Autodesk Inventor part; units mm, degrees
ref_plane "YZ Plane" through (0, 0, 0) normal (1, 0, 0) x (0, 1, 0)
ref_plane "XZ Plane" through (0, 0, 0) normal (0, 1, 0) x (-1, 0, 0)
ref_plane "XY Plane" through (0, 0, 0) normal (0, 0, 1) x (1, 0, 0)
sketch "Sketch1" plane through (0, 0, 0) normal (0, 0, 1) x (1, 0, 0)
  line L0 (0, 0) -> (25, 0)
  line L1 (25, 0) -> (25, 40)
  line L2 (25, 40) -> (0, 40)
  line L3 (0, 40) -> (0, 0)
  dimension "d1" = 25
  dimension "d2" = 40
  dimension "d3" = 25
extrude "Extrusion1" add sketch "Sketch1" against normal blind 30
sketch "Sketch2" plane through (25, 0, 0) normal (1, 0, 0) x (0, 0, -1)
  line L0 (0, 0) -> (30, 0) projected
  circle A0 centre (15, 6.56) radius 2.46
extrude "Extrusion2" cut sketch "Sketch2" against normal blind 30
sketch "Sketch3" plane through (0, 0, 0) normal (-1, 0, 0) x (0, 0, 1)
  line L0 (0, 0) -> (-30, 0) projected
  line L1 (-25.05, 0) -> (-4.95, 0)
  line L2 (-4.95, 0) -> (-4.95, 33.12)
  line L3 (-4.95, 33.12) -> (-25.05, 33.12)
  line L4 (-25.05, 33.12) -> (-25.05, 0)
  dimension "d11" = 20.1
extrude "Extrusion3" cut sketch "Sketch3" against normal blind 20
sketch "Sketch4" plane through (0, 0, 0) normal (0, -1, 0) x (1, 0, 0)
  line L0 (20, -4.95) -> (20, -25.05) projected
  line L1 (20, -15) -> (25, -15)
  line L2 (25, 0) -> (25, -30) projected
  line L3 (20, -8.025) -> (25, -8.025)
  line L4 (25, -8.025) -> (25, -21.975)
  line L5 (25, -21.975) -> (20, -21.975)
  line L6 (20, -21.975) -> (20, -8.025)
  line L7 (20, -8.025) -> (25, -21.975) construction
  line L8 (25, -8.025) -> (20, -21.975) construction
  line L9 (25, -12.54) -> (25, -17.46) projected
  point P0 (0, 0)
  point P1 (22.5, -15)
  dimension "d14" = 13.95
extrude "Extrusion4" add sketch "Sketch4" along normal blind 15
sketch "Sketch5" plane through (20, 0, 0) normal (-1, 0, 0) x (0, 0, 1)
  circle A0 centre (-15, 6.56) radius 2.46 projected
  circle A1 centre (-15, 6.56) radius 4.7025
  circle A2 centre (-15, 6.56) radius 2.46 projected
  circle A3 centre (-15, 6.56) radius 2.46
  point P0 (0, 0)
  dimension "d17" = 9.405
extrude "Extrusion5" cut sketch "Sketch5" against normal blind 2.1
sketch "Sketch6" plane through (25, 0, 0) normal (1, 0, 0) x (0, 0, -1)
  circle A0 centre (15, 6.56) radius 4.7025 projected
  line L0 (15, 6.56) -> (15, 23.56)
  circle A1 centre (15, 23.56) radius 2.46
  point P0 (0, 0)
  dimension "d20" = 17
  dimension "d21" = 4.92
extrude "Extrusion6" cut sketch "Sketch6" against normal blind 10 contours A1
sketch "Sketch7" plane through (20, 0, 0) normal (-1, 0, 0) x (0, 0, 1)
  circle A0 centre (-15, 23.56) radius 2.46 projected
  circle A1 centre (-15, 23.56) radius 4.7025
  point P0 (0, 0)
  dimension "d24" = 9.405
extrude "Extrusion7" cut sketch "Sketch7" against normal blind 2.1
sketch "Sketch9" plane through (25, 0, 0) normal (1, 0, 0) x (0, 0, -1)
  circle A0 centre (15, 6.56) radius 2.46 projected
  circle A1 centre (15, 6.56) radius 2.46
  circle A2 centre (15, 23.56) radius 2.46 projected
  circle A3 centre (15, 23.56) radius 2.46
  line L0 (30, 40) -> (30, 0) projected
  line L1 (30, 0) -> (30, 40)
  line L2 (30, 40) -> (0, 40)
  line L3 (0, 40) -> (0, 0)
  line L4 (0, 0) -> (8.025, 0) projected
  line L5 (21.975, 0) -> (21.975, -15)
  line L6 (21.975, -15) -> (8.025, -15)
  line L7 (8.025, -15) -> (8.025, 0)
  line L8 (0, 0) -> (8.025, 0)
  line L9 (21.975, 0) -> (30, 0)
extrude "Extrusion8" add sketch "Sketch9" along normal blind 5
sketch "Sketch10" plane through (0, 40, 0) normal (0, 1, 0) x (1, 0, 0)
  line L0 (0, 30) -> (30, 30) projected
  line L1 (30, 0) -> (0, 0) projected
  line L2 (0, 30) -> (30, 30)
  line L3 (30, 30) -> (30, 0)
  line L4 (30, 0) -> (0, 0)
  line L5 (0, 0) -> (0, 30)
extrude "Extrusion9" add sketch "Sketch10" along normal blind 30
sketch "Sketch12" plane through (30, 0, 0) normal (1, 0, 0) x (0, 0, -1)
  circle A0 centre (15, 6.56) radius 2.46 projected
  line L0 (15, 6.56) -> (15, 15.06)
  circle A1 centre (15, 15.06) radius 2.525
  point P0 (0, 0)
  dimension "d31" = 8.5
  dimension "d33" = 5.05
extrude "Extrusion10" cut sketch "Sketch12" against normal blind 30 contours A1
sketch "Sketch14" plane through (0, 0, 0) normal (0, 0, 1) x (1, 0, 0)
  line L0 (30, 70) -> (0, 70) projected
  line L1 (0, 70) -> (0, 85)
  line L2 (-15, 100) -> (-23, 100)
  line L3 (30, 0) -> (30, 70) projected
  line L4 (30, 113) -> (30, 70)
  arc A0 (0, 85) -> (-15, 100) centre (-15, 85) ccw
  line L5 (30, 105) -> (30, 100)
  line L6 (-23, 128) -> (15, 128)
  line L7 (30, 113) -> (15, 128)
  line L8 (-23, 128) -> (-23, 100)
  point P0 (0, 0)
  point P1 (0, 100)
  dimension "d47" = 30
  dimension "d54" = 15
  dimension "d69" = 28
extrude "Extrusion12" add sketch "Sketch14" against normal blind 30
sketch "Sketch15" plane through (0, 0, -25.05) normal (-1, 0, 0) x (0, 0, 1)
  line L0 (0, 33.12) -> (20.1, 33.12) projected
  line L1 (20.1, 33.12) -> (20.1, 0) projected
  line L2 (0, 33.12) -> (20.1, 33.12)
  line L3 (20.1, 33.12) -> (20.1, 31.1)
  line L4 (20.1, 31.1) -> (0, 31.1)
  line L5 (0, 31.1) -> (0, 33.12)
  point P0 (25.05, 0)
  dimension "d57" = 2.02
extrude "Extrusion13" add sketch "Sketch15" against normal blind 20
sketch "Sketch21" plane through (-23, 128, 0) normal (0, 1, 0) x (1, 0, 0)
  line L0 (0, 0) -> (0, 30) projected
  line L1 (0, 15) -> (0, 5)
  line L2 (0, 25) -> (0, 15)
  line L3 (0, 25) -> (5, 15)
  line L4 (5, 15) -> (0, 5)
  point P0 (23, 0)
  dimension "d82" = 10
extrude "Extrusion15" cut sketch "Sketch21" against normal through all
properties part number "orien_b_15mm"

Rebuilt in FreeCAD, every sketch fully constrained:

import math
import FreeCAD as App
import Part
import Sketcher
Q = App.Units.Quantity


def add_polygon(sketch, points):
    """Adds a closed chain of lines whose ends are joined by coincident constraints."""
    first, n = sketch.GeometryCount, len(points)
    for a, b in zip(points, points[1:] + points[:1]):
        sketch.addGeometry(Part.LineSegment(App.Vector(*a, 0), App.Vector(*b, 0)), False)
    for i in range(n):
        sketch.addConstraint(Sketcher.Constraint("Coincident", first + i, 2, first + (i + 1) % n, 1))

doc = App.newDocument("Part")
body = doc.addObject("PartDesign::Body", "Body")

# Sketch on XY plane
sketch1 = body.newObject("Sketcher::SketchObject", "Sketch")
sketch1.AttachmentSupport = (doc.getObject("XY_Plane"), [""])
sketch1.MapMode = "FlatFace"
add_polygon(sketch1, [(0, 40), (0, 0), (25, 0), (25, 40)])  # lines 0-3
sketch1.addConstraint([
    Sketcher.Constraint("Vertical", 0),
    Sketcher.Constraint("Horizontal", 1),
    Sketcher.Constraint("Vertical", 2),
    Sketcher.Constraint("Horizontal", 3),
    Sketcher.Constraint("Coincident", 0, 2, -1, 1),
    Sketcher.Constraint("DistanceX", 1, 1, 1, 2, Q("25 mm")),
    Sketcher.Constraint("DistanceY", 0, 2, 0, 1, Q("40 mm")),
])
pad1 = body.newObject("PartDesign::Pad", "Pad")
pad1.Profile = sketch1
pad1.Length = 30
pad1.Reversed = True

# Sketch on YZ plane
sketch2 = body.newObject("Sketcher::SketchObject", "Sketch001")
sketch2.AttachmentSupport = (doc.getObject("YZ_Plane"), [""])
sketch2.MapMode = "FlatFace"
sketch2.AttachmentOffset = App.Placement(App.Vector(0, 0, 25), App.Rotation())
sketch2.addGeometry(Part.Circle(App.Vector(6.56, -15, 0), App.Vector(0, 0, 1), 2.46), False)
sketch2.addConstraint([
    Sketcher.Constraint("Diameter", 0, Q("4.92 mm")),
    Sketcher.Constraint("DistanceY", 0, 3, -1, 1, Q("15 mm")),
    Sketcher.Constraint("DistanceX", -1, 1, 0, 3, Q("6.56 mm")),
])
pocket1 = body.newObject("PartDesign::Pocket", "Pocket")
pocket1.Profile = sketch2
pocket1.Length = 30

# Sketch on YZ plane
sketch3 = body.newObject("Sketcher::SketchObject", "Sketch002")
sketch3.AttachmentSupport = (doc.getObject("YZ_Plane"), [""])
sketch3.MapMode = "FlatFace"
add_polygon(sketch3, [(0, -25.05), (0, -4.95), (33.12, -4.95), (33.12, -25.05)])  # lines 0-3
sketch3.addConstraint([
    Sketcher.Constraint("Vertical", 0),
    Sketcher.Constraint("Horizontal", 1),
    Sketcher.Constraint("Vertical", 2),
    Sketcher.Constraint("Horizontal", 3),
    Sketcher.Constraint("PointOnObject", 0, 2, -2),
    Sketcher.Constraint("DistanceY", 0, 1, 0, 2, Q("20.1 mm")),
    Sketcher.Constraint("DistanceX", 1, 1, 1, 2, Q("33.12 mm")),
    Sketcher.Constraint("DistanceY", 0, 2, -1, 1, Q("4.95 mm")),
])
pocket2 = body.newObject("PartDesign::Pocket", "Pocket001")
pocket2.Profile = sketch3
pocket2.Length = 20
pocket2.Reversed = True

# Sketch on XZ plane
sketch4 = body.newObject("Sketcher::SketchObject", "Sketch003")
sketch4.AttachmentSupport = (doc.getObject("XZ_Plane"), [""])
sketch4.MapMode = "FlatFace"
add_polygon(sketch4, [(25, -8.025), (20, -8.025), (20, -21.975), (25, -21.975)])  # lines 0-3
sketch4.addConstraint([
    Sketcher.Constraint("Horizontal", 0),
    Sketcher.Constraint("Vertical", 1),
    Sketcher.Constraint("Horizontal", 2),
    Sketcher.Constraint("Vertical", 3),
    Sketcher.Constraint("DistanceY", 1, 2, 1, 1, Q("13.95 mm")),
    Sketcher.Constraint("DistanceX", 0, 2, 0, 1, Q("5 mm")),
    Sketcher.Constraint("DistanceX", -1, 1, 0, 2, Q("20 mm")),
    Sketcher.Constraint("DistanceY", 0, 2, -1, 1, Q("8.025 mm")),
])
pad2 = body.newObject("PartDesign::Pad", "Pad001")
pad2.Profile = sketch4
pad2.Length = 15

# Sketch on YZ plane
sketch5 = body.newObject("Sketcher::SketchObject", "Sketch004")
sketch5.AttachmentSupport = (doc.getObject("YZ_Plane"), [""])
sketch5.MapMode = "FlatFace"
sketch5.AttachmentOffset = App.Placement(App.Vector(0, 0, 20), App.Rotation())
sketch5.addGeometry([
    Part.Circle(App.Vector(6.56, -15, 0), App.Vector(0, 0, 1), 4.7025),
    Part.Circle(App.Vector(6.56, -15, 0), App.Vector(0, 0, 1), 2.46),
], False)
sketch5.addConstraint([
    Sketcher.Constraint("Coincident", 1, 3, 0, 3),
    Sketcher.Constraint("Diameter", 0, Q("9.405 mm")),
    Sketcher.Constraint("Diameter", 1, Q("4.92 mm")),
    Sketcher.Constraint("DistanceY", 0, 3, -1, 1, Q("15 mm")),
    Sketcher.Constraint("DistanceX", -1, 1, 0, 3, Q("6.56 mm")),
])
pocket3 = body.newObject("PartDesign::Pocket", "Pocket002")
pocket3.Profile = sketch5
pocket3.Length = 2.1
pocket3.Reversed = True

# Sketch on YZ plane
sketch6 = body.newObject("Sketcher::SketchObject", "Sketch005")
sketch6.AttachmentSupport = (doc.getObject("YZ_Plane"), [""])
sketch6.MapMode = "FlatFace"
sketch6.AttachmentOffset = App.Placement(App.Vector(0, 0, 25), App.Rotation())
sketch6.addGeometry(Part.Circle(App.Vector(23.56, -15, 0), App.Vector(0, 0, 1), 2.46), False)
sketch6.addConstraint([
    Sketcher.Constraint("Diameter", 0, Q("4.92 mm")),
    Sketcher.Constraint("DistanceY", 0, 3, -1, 1, Q("15 mm")),
    Sketcher.Constraint("DistanceX", -1, 1, 0, 3, Q("23.56 mm")),
])
pocket4 = body.newObject("PartDesign::Pocket", "Pocket003")
pocket4.Profile = sketch6
pocket4.Length = 10

# Sketch on YZ plane
sketch7 = body.newObject("Sketcher::SketchObject", "Sketch006")
sketch7.AttachmentSupport = (doc.getObject("YZ_Plane"), [""])
sketch7.MapMode = "FlatFace"
sketch7.AttachmentOffset = App.Placement(App.Vector(0, 0, 20), App.Rotation())
sketch7.addGeometry([
    Part.Circle(App.Vector(23.56, -15, 0), App.Vector(0, 0, 1), 4.7025),
    Part.Circle(App.Vector(23.56, -15, 0), App.Vector(0, 0, 1), 2.46),
], False)
sketch7.addConstraint([
    Sketcher.Constraint("Coincident", 1, 3, 0, 3),
    Sketcher.Constraint("Diameter", 0, Q("9.405 mm")),
    Sketcher.Constraint("Diameter", 1, Q("4.92 mm")),
    Sketcher.Constraint("DistanceY", 0, 3, -1, 1, Q("15 mm")),
    Sketcher.Constraint("DistanceX", -1, 1, 0, 3, Q("23.56 mm")),
])
pocket5 = body.newObject("PartDesign::Pocket", "Pocket004")
pocket5.Profile = sketch7
pocket5.Length = 2.1
pocket5.Reversed = True

# Sketch on YZ plane
sketch8 = body.newObject("Sketcher::SketchObject", "Sketch007")
sketch8.AttachmentSupport = (doc.getObject("YZ_Plane"), [""])
sketch8.MapMode = "FlatFace"
sketch8.AttachmentOffset = App.Placement(App.Vector(0, 0, 25), App.Rotation())
add_polygon(sketch8, [(0, -30), (40, -30), (40, 0), (0, 0), (0, -8.025), (-15, -8.025), (-15, -21.975), (0, -21.975)])  # lines 0-7
sketch8.addGeometry(Part.Circle(App.Vector(6.56, -15, 0), App.Vector(0, 0, 1), 2.46), False)  # 8
sketch8.addGeometry(Part.Circle(App.Vector(23.56, -15, 0), App.Vector(0, 0, 1), 2.46), False)  # 9
sketch8.addConstraint([
    Sketcher.Constraint("Horizontal", 0),
    Sketcher.Constraint("Vertical", 1),
    Sketcher.Constraint("Horizontal", 2),
    Sketcher.Constraint("Vertical", 3),
    Sketcher.Constraint("Horizontal", 4),
    Sketcher.Constraint("Vertical", 5),
    Sketcher.Constraint("Horizontal", 6),
    Sketcher.Constraint("Vertical", 7),
    Sketcher.Constraint("Coincident", 2, 2, -1, 1),
    Sketcher.Constraint("Equal", 8, 9),
    Sketcher.Constraint("PointOnObject", 6, 2, -2),
    Sketcher.Constraint("Horizontal", 8, 3, 9, 3),
    Sketcher.Constraint("Equal", 3, 7),
    Sketcher.Constraint("Diameter", 8, Q("4.92 mm")),
    Sketcher.Constraint("DistanceX", 0, 1, 0, 2, Q("40 mm")),
    Sketcher.Constraint("DistanceX", 4, 2, 4, 1, Q("15 mm")),
    Sketcher.Constraint("DistanceY", 1, 1, 1, 2, Q("30 mm")),
    Sketcher.Constraint("DistanceY", 8, 3, -1, 1, Q("15 mm")),
    Sketcher.Constraint("DistanceX", 8, 3, 9, 3, Q("17 mm")),
    Sketcher.Constraint("DistanceY", 5, 2, 5, 1, Q("13.95 mm")),
    Sketcher.Constraint("DistanceX", -1, 1, 8, 3, Q("6.56 mm")),
])
pad3 = body.newObject("PartDesign::Pad", "Pad002")
pad3.Profile = sketch8
pad3.Length = 5

# Sketch on XZ plane
sketch9 = body.newObject("Sketcher::SketchObject", "Sketch008")
sketch9.AttachmentSupport = (doc.getObject("XZ_Plane"), [""])
sketch9.MapMode = "FlatFace"
sketch9.AttachmentOffset = App.Placement(App.Vector(0, 0, -40), App.Rotation())
add_polygon(sketch9, [(30, -30), (0, -30), (0, 0), (30, 0)])  # lines 0-3
sketch9.addConstraint([
    Sketcher.Constraint("Horizontal", 0),
    Sketcher.Constraint("Vertical", 1),
    Sketcher.Constraint("Horizontal", 2),
    Sketcher.Constraint("Vertical", 3),
    Sketcher.Constraint("Coincident", 1, 2, -1, 1),
    Sketcher.Constraint("Equal", 2, 1),
    Sketcher.Constraint("DistanceX", 0, 2, 0, 1, Q("30 mm")),
])
pad4 = body.newObject("PartDesign::Pad", "Pad003")
pad4.Profile = sketch9
pad4.Length = 30
pad4.Reversed = True

# Sketch on YZ plane
sketch10 = body.newObject("Sketcher::SketchObject", "Sketch009")
sketch10.AttachmentSupport = (doc.getObject("YZ_Plane"), [""])
sketch10.MapMode = "FlatFace"
sketch10.AttachmentOffset = App.Placement(App.Vector(0, 0, 30), App.Rotation())
sketch10.addGeometry(Part.Circle(App.Vector(15.06, -15, 0), App.Vector(0, 0, 1), 2.525), False)
sketch10.addConstraint([
    Sketcher.Constraint("Diameter", 0, Q("5.05 mm")),
    Sketcher.Constraint("DistanceY", 0, 3, -1, 1, Q("15 mm")),
    Sketcher.Constraint("DistanceX", -1, 1, 0, 3, Q("15.06 mm")),
])
pocket6 = body.newObject("PartDesign::Pocket", "Pocket005")
pocket6.Profile = sketch10
pocket6.Length = 30

# Sketch on XY plane
sketch11 = body.newObject("Sketcher::SketchObject", "Sketch010")
sketch11.AttachmentSupport = (doc.getObject("XY_Plane"), [""])
sketch11.MapMode = "FlatFace"
sketch11.addGeometry([
    Part.LineSegment(App.Vector(0, 70, 0), App.Vector(30, 70, 0)),  # 0
    Part.LineSegment(App.Vector(30, 70, 0), App.Vector(30, 113, 0)),  # 1
    Part.LineSegment(App.Vector(30, 113, 0), App.Vector(15, 128, 0)),  # 2
    Part.LineSegment(App.Vector(15, 128, 0), App.Vector(-23, 128, 0)),  # 3
    Part.LineSegment(App.Vector(-23, 128, 0), App.Vector(-23, 100, 0)),  # 4
    Part.LineSegment(App.Vector(-23, 100, 0), App.Vector(-15, 100, 0)),  # 5
    Part.ArcOfCircle(Part.Circle(App.Vector(-15, 85, 0), App.Vector(0, 0, 1), 15), math.radians(0), math.radians(90)),  # 6
    Part.LineSegment(App.Vector(0, 85, 0), App.Vector(0, 70, 0)),  # 7
], False)
sketch11.addConstraint([
    Sketcher.Constraint("Coincident", 0, 2, 1, 1),
    Sketcher.Constraint("Coincident", 1, 2, 2, 1),
    Sketcher.Constraint("Coincident", 2, 2, 3, 1),
    Sketcher.Constraint("Coincident", 3, 2, 4, 1),
    Sketcher.Constraint("Coincident", 4, 2, 5, 1),
    Sketcher.Constraint("Tangent", 5, 2, 6, 2),
    Sketcher.Constraint("Tangent", 6, 1, 7, 1),
    Sketcher.Constraint("Coincident", 7, 2, 0, 1),
    Sketcher.Constraint("Horizontal", 0),
    Sketcher.Constraint("Vertical", 1),
    Sketcher.Constraint("Horizontal", 3),
    Sketcher.Constraint("Vertical", 4),
    Sketcher.Constraint("Horizontal", 5),
    Sketcher.Constraint("Vertical", 7),
    Sketcher.Constraint("PointOnObject", 6, 1, -2),
    Sketcher.Constraint("Radius", 6, Q("15 mm")),
    Sketcher.Constraint("DistanceX", 0, 1, 0, 2, Q("30 mm")),
    Sketcher.Constraint("DistanceY", 4, 2, 4, 1, Q("28 mm")),
    Sketcher.Constraint("DistanceY", 7, 2, 7, 1, Q("15 mm")),
    Sketcher.Constraint("DistanceX", -1, 1, 2, 2, Q("15 mm")),
    Sketcher.Constraint("DistanceY", 6, 3, 1, 2, Q("28 mm")),
    Sketcher.Constraint("DistanceX", 3, 2, 3, 1, Q("38 mm")),
    Sketcher.Constraint("DistanceY", -1, 1, 6, 3, Q("85 mm")),
])
pad5 = body.newObject("PartDesign::Pad", "Pad004")
pad5.Profile = sketch11
pad5.Length = 30
pad5.Reversed = True

# Sketch on YZ plane
sketch12 = body.newObject("Sketcher::SketchObject", "Sketch011")
sketch12.AttachmentSupport = (doc.getObject("YZ_Plane"), [""])
sketch12.MapMode = "FlatFace"
add_polygon(sketch12, [(33.12, -4.95), (33.12, -25.05), (31.1, -25.05), (31.1, -4.95)])  # lines 0-3
sketch12.addConstraint([
    Sketcher.Constraint("Vertical", 0),
    Sketcher.Constraint("Horizontal", 1),
    Sketcher.Constraint("Vertical", 2),
    Sketcher.Constraint("Horizontal", 3),
    Sketcher.Constraint("DistanceX", 1, 2, 1, 1, Q("2.02 mm")),
    Sketcher.Constraint("DistanceY", 0, 2, 0, 1, Q("20.1 mm")),
    Sketcher.Constraint("DistanceX", -1, 1, 1, 2, Q("31.1 mm")),
    Sketcher.Constraint("DistanceY", 0, 2, -1, 1, Q("25.05 mm")),
])
pad6 = body.newObject("PartDesign::Pad", "Pad005")
pad6.Profile = sketch12
pad6.Length = 20

# Sketch on XZ plane
sketch13 = body.newObject("Sketcher::SketchObject", "Sketch012")
sketch13.AttachmentSupport = (doc.getObject("XZ_Plane"), [""])
sketch13.MapMode = "FlatFace"
sketch13.AttachmentOffset = App.Placement(App.Vector(0, 0, -128), App.Rotation())
add_polygon(sketch13, [(-23, -25), (-23, -5), (-18, -15)])  # lines 0-2
sketch13.addConstraint([
    Sketcher.Constraint("Vertical", 0),
    Sketcher.Constraint("Equal", 1, 2),
    Sketcher.Constraint("DistanceY", 1, 2, 0, 2, Q("10 mm")),
    Sketcher.Constraint("DistanceX", 0, 2, -1, 1, Q("23 mm")),
    Sketcher.Constraint("DistanceY", 0, 2, -1, 1, Q("5 mm")),
    Sketcher.Constraint("DistanceX", 1, 2, -1, 1, Q("18 mm")),
])
pocket7 = body.newObject("PartDesign::Pocket", "Pocket006")
pocket7.Profile = sketch13
pocket7.Type = "ThroughAll"
pocket7.Reversed = True

doc.recompute()
